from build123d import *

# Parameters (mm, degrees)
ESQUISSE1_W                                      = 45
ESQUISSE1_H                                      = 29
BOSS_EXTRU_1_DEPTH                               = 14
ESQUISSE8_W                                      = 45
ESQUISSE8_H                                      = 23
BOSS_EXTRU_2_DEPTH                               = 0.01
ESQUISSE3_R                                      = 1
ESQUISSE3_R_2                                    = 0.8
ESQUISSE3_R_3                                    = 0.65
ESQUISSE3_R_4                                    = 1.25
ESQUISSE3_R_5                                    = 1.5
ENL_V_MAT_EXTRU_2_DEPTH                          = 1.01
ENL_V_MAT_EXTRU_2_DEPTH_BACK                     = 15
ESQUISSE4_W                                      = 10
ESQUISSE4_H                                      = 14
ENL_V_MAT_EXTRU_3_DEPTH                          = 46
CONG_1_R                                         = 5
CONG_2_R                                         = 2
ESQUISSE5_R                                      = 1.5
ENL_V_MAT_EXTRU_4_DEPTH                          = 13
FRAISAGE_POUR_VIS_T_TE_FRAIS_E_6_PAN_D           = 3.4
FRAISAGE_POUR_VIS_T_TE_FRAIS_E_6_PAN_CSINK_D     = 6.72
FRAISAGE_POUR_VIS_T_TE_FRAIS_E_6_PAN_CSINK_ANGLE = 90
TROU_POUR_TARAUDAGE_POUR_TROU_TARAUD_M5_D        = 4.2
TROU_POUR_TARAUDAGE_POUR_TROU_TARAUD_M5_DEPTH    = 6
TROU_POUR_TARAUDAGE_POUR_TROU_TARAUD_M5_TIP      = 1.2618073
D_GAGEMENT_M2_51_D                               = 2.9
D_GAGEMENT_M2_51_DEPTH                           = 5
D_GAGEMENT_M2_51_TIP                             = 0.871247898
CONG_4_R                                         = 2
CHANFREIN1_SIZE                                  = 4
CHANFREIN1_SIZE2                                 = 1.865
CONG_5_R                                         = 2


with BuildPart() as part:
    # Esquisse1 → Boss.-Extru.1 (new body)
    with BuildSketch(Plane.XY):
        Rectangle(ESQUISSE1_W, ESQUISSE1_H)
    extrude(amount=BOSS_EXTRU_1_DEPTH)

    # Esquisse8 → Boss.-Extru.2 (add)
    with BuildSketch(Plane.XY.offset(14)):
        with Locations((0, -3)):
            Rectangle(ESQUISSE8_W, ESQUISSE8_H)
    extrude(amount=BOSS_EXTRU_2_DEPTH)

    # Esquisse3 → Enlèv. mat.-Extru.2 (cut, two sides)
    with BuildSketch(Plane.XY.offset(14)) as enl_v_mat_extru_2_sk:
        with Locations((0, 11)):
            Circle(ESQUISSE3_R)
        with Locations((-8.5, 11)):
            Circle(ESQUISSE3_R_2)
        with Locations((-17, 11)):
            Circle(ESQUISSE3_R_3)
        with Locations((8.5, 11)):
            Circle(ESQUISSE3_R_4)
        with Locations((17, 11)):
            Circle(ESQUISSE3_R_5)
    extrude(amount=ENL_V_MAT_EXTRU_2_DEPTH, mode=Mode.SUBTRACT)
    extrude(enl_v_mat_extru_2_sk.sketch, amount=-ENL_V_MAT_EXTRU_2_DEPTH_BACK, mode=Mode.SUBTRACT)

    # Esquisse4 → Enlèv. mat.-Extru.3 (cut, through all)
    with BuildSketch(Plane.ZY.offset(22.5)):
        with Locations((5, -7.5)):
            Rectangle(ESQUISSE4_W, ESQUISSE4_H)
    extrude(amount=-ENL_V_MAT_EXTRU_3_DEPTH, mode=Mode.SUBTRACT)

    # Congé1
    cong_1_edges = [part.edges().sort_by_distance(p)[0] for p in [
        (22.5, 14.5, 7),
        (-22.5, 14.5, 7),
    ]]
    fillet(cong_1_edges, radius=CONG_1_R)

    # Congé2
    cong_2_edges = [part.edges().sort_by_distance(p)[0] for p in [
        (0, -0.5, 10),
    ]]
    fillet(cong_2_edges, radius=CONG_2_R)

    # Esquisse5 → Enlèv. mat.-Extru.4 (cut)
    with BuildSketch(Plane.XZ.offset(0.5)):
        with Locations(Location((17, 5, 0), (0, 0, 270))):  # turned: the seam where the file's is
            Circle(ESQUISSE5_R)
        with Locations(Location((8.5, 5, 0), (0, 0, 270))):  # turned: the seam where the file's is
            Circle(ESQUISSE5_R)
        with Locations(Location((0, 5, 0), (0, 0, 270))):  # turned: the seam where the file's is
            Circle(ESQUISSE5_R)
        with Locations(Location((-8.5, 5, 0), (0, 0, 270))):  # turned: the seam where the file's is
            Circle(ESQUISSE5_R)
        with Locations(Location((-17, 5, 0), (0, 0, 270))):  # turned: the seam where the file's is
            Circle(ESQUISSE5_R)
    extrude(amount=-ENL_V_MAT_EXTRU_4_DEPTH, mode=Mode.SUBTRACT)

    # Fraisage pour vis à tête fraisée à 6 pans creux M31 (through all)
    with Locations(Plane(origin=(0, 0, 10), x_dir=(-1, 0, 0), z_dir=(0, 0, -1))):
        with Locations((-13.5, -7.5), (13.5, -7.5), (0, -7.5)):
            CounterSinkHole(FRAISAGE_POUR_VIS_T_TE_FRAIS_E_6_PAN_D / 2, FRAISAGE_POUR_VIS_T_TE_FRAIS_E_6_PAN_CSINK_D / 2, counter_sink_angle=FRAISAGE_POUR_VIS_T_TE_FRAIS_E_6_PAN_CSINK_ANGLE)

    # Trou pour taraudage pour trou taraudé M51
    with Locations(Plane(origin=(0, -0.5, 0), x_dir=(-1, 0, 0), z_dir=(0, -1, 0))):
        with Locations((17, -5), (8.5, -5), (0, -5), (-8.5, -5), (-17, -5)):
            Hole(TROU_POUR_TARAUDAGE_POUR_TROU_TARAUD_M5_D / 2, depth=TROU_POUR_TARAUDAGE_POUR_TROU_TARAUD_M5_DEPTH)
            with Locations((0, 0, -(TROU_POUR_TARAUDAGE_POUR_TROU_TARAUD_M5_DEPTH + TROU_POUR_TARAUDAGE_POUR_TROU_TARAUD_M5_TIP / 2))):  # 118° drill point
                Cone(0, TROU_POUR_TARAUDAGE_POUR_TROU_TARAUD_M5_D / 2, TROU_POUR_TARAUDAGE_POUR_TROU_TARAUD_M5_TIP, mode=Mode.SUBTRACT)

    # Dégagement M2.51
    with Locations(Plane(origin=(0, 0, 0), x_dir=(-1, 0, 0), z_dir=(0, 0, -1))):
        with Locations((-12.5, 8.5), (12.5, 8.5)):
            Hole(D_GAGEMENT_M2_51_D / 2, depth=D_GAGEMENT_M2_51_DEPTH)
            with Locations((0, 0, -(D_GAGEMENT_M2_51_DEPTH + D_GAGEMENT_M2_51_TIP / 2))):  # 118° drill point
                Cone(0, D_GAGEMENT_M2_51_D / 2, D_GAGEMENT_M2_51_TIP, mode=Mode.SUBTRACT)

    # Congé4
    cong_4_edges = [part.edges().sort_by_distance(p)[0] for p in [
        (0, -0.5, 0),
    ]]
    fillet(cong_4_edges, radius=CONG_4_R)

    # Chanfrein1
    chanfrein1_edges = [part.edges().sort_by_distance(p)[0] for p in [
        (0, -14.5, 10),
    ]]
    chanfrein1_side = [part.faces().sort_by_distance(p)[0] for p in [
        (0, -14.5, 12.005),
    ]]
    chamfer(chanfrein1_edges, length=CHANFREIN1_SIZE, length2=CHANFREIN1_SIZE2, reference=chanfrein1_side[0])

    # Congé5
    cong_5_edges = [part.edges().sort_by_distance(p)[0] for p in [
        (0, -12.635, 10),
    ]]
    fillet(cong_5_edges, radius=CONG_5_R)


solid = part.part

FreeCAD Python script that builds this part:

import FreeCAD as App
import Part
import Sketcher

V = App.Vector


def edges_at(feature, points):
    """Names of the edges that pass closest to the given points."""
    edges = feature.Shape.Edges
    near = lambda p: min(range(len(edges)), key=lambda i: edges[i].distToShape(Part.Vertex(*p))[0])
    return sorted({f"Edge{near(p) + 1}" for p in points})

doc = App.newDocument("Part")
body = doc.addObject("PartDesign::Body", "Body")

sketch1 = body.newObject("Sketcher::SketchObject", "Sketch")
sketch1.AttachmentSupport = (doc.getObject("XY_Plane"), [""])
sketch1.MapMode = "FlatFace"
sketch1.addGeometry([
    Part.LineSegment(V(-22.5, 14.5, 0), V(-22.5, -14.5, 0)),
    Part.LineSegment(V(-22.5, -14.5, 0), V(22.5, -14.5, 0)),
    Part.LineSegment(V(22.5, -14.5, 0), V(22.5, 14.5, 0)),
    Part.LineSegment(V(22.5, 14.5, 0), V(-22.5, 14.5, 0)),
], False)
sketch1.addConstraint([
    Sketcher.Constraint("Coincident", 0, 2, 1, 1),
    Sketcher.Constraint("Coincident", 1, 2, 2, 1),
    Sketcher.Constraint("Coincident", 2, 2, 3, 1),
    Sketcher.Constraint("Coincident", 3, 2, 0, 1),
    Sketcher.Constraint("Vertical", 0),
    Sketcher.Constraint("Horizontal", 1),
    Sketcher.Constraint("Vertical", 2),
    Sketcher.Constraint("Horizontal", 3),
    Sketcher.Constraint("Symmetric", 0, 2, 2, 2, -1, 1),
    Sketcher.Constraint("DistanceX", 1, 1, 1, 2, 45.0),
    Sketcher.Constraint("DistanceY", 0, 2, 0, 1, 29.0),
])
pad1 = body.newObject("PartDesign::Pad", "Pad")
pad1.Profile = sketch1
pad1.Length = 14

sketch2 = body.newObject("Sketcher::SketchObject", "Sketch001")
sketch2.AttachmentSupport = (doc.getObject("XY_Plane"), [""])
sketch2.MapMode = "FlatFace"
sketch2.AttachmentOffset = App.Placement(V(0, 0, 14), App.Rotation())
sketch2.addGeometry([
    Part.LineSegment(V(-22.5, 8.5, 0), V(-22.5, -14.5, 0)),
    Part.LineSegment(V(-22.5, -14.5, 0), V(22.5, -14.5, 0)),
    Part.LineSegment(V(22.5, -14.5, 0), V(22.5, 8.5, 0)),
    Part.LineSegment(V(22.5, 8.5, 0), V(-22.5, 8.5, 0)),
], False)
sketch2.addConstraint([
    Sketcher.Constraint("Coincident", 0, 2, 1, 1),
    Sketcher.Constraint("Coincident", 1, 2, 2, 1),
    Sketcher.Constraint("Coincident", 2, 2, 3, 1),
    Sketcher.Constraint("Coincident", 3, 2, 0, 1),
    Sketcher.Constraint("Vertical", 0),
    Sketcher.Constraint("Horizontal", 1),
    Sketcher.Constraint("Vertical", 2),
    Sketcher.Constraint("Horizontal", 3),
    Sketcher.Constraint("DistanceX", 1, 1, 1, 2, 45.0),
    Sketcher.Constraint("DistanceY", 0, 2, 0, 1, 23.0),
    Sketcher.Constraint("DistanceX", 0, 2, -1, 1, 22.5),
    Sketcher.Constraint("DistanceY", 0, 2, -1, 1, 14.5),
])
pad2 = body.newObject("PartDesign::Pad", "Pad001")
pad2.Profile = sketch2
pad2.Length = 0.01

sketch3 = body.newObject("Sketcher::SketchObject", "Sketch002")
sketch3.AttachmentSupport = (doc.getObject("XY_Plane"), [""])
sketch3.MapMode = "FlatFace"
sketch3.AttachmentOffset = App.Placement(V(0, 0, 14), App.Rotation())
sketch3.addGeometry([
    Part.Circle(V(0, 11, 0), V(0, 0, 1), 1),
    Part.Circle(V(-8.5, 11, 0), V(0, 0, 1), 0.8),
    Part.Circle(V(-17, 11, 0), V(0, 0, 1), 0.65),
    Part.Circle(V(8.5, 11, 0), V(0, 0, 1), 1.25),
    Part.Circle(V(17, 11, 0), V(0, 0, 1), 1.5),
], False)
sketch3.addConstraint([
    Sketcher.Constraint("Symmetric", 1, 3, 3, 3, -2),
    Sketcher.Constraint("Symmetric", 2, 3, 4, 3, -2),
    Sketcher.Constraint("PointOnObject", 0, 3, -2),
    Sketcher.Constraint("Horizontal", 0, 3, 1, 3),
    Sketcher.Constraint("Horizontal", 1, 3, 2, 3),
    Sketcher.Constraint("Diameter", 0, 2.0),
    Sketcher.Constraint("Diameter", 4, 3.0),
    Sketcher.Constraint("Diameter", 1, 1.6),
    Sketcher.Constraint("Diameter", 2, 1.3),
    Sketcher.Constraint("Diameter", 3, 2.5),
    Sketcher.Constraint("DistanceY", -1, 1, 0, 3, 11.0),
    Sketcher.Constraint("DistanceX", 2, 3, -1, 1, 17.0),
    Sketcher.Constraint("DistanceX", 1, 3, 3, 3, 17.0),
])
pocket1 = body.newObject("PartDesign::Pocket", "Pocket")
pocket1.Profile = sketch3
pocket1.Type = "ThroughAll"
pocket1.Midplane = True

sketch4 = body.newObject("Sketcher::SketchObject", "Sketch003")
sketch4.AttachmentSupport = (doc.getObject("YZ_Plane"), [""])
sketch4.MapMode = "FlatFace"
sketch4.AttachmentOffset = App.Placement(V(0, 0, -22.5), App.Rotation())
sketch4.addGeometry([
    Part.LineSegment(V(-0.5, 0, 0), V(-14.5, 0, 0)),
    Part.LineSegment(V(-14.5, 0, 0), V(-14.5, 10, 0)),
    Part.LineSegment(V(-14.5, 10, 0), V(-0.5, 10, 0)),
    Part.LineSegment(V(-0.5, 10, 0), V(-0.5, 0, 0)),
], False)
sketch4.addConstraint([
    Sketcher.Constraint("Coincident", 0, 2, 1, 1),
    Sketcher.Constraint("Coincident", 1, 2, 2, 1),
    Sketcher.Constraint("Coincident", 2, 2, 3, 1),
    Sketcher.Constraint("Coincident", 3, 2, 0, 1),
    Sketcher.Constraint("Horizontal", 0),
    Sketcher.Constraint("Vertical", 1),
    Sketcher.Constraint("Horizontal", 2),
    Sketcher.Constraint("Vertical", 3),
    Sketcher.Constraint("PointOnObject", 0, 2, -1),
    Sketcher.Constraint("DistanceX", 0, 2, 0, 1, 14.0),
    Sketcher.Constraint("DistanceY", 1, 1, 1, 2, 10.0),
    Sketcher.Constraint("DistanceX", 0, 2, -1, 1, 14.5),
])
pocket2 = body.newObject("PartDesign::Pocket", "Pocket001")
pocket2.Profile = sketch4
pocket2.Type = "ThroughAll"
pocket2.Reversed = True
doc.recompute()

fillet = body.newObject("PartDesign::Fillet", "Fillet")
fillet.Base = (pocket2, edges_at(pocket2, [(22.5, 14.5, 7), (-22.5, 14.5, 7)]))
fillet.Radius = 5
doc.recompute()

fillet2 = body.newObject("PartDesign::Fillet", "Fillet001")
fillet2.Base = (fillet, edges_at(fillet, [(0, -0.5, 10)]))
fillet2.Radius = 2

sketch5 = body.newObject("Sketcher::SketchObject", "Sketch004")
sketch5.AttachmentSupport = (doc.getObject("XZ_Plane"), [""])
sketch5.MapMode = "FlatFace"
sketch5.AttachmentOffset = App.Placement(V(0, 0, 0.5), App.Rotation())
sketch5.addGeometry([
    Part.Circle(V(17, 5, 0), V(0, 0, 1), 1.5),
    Part.Circle(V(8.5, 5, 0), V(0, 0, 1), 1.5),
    Part.Circle(V(0, 5, 0), V(0, 0, 1), 1.5),
    Part.Circle(V(-8.5, 5, 0), V(0, 0, 1), 1.5),
    Part.Circle(V(-17, 5, 0), V(0, 0, 1), 1.5),
], False)
sketch5.addConstraint([
    Sketcher.Constraint("Equal", 0, 1),
    Sketcher.Constraint("Equal", 1, 2),
    Sketcher.Constraint("Equal", 2, 3),
    Sketcher.Constraint("Equal", 3, 4),
    Sketcher.Constraint("Symmetric", 1, 3, 3, 3, -2),
    Sketcher.Constraint("Symmetric", 0, 3, 4, 3, -2),
    Sketcher.Constraint("PointOnObject", 2, 3, -2),
    Sketcher.Constraint("Horizontal", 0, 3, 1, 3),
    Sketcher.Constraint("Horizontal", 1, 3, 2, 3),
    Sketcher.Constraint("Diameter", 0, 3.0),
    Sketcher.Constraint("DistanceX", -1, 1, 0, 3, 17.0),
    Sketcher.Constraint("DistanceY", -1, 1, 0, 3, 5.0),
    Sketcher.Constraint("DistanceX", 3, 3, 1, 3, 17.0),
])
pocket3 = body.newObject("PartDesign::Pocket", "Pocket002")
pocket3.Profile = sketch5
pocket3.Length = 13

sketch6 = body.newObject("Sketcher::SketchObject", "Sketch005")
sketch6.AttachmentSupport = (doc.getObject("XY_Plane"), [""])
sketch6.MapMode = "FlatFace"
sketch6.AttachmentOffset = App.Placement(V(0, 0, 10), App.Rotation())
sketch6.addGeometry([
    Part.Circle(V(13.5, -7.5, 0), V(0, 0, 1), 1.7),
    Part.Circle(V(-13.5, -7.5, 0), V(0, 0, 1), 1.7),
    Part.Circle(V(0, -7.5, 0), V(0, 0, 1), 1.7),
], False)
sketch6.addConstraint([
    Sketcher.Constraint("Equal", 0, 1),
    Sketcher.Constraint("Equal", 1, 2),
    Sketcher.Constraint("Symmetric", 0, 3, 1, 3, -2),
    Sketcher.Constraint("PointOnObject", 2, 3, -2),
    Sketcher.Constraint("Horizontal", 1, 3, 2, 3),
    Sketcher.Constraint("Diameter", 0, 3.4),
    Sketcher.Constraint("DistanceX", 1, 3, 0, 3, 27.0),
    Sketcher.Constraint("DistanceY", 0, 3, -1, 1, 7.5),
])
doc.recompute()
hole = body.newObject("PartDesign::Hole", "Hole")
hole.Profile = sketch6
hole.ThreadType = "None"
hole.Diameter = 3.4
hole.DepthType = "ThroughAll"
hole.HoleCutType = "Countersink"
hole.HoleCutDiameter = 6.72
hole.HoleCutCountersinkAngle = 90
hole.Reversed = True

sketch7 = body.newObject("Sketcher::SketchObject", "Sketch006")
sketch7.AttachmentSupport = (doc.getObject("XZ_Plane"), [""])
sketch7.MapMode = "FlatFace"
sketch7.AttachmentOffset = App.Placement(V(0, 0, 0.5), App.Rotation())
sketch7.addGeometry([
    Part.Circle(V(-17, 5, 0), V(0, 0, 1), 2.1),
    Part.Circle(V(-8.5, 5, 0), V(0, 0, 1), 2.1),
    Part.Circle(V(0, 5, 0), V(0, 0, 1), 2.1),
    Part.Circle(V(8.5, 5, 0), V(0, 0, 1), 2.1),
    Part.Circle(V(17, 5, 0), V(0, 0, 1), 2.1),
], False)
sketch7.addConstraint([
    Sketcher.Constraint("Equal", 0, 1),
    Sketcher.Constraint("Equal", 1, 2),
    Sketcher.Constraint("Equal", 2, 3),
    Sketcher.Constraint("Equal", 3, 4),
    Sketcher.Constraint("Symmetric", 1, 3, 3, 3, -2),
    Sketcher.Constraint("Symmetric", 0, 3, 4, 3, -2),
    Sketcher.Constraint("PointOnObject", 2, 3, -2),
    Sketcher.Constraint("Horizontal", 0, 3, 1, 3),
    Sketcher.Constraint("Horizontal", 1, 3, 2, 3),
    Sketcher.Constraint("Diameter", 0, 4.2),
    Sketcher.Constraint("DistanceX", 0, 3, -1, 1, 17.0),
    Sketcher.Constraint("DistanceY", -1, 1, 0, 3, 5.0),
    Sketcher.Constraint("DistanceX", 1, 3, 3, 3, 17.0),
])
doc.recompute()
hole2 = body.newObject("PartDesign::Hole", "Hole001")
hole2.Profile = sketch7
hole2.ThreadType = "None"
hole2.Diameter = 4.2
hole2.DepthType = "Dimension"
hole2.Depth = 6
hole2.DrillPoint = "Angled"
hole2.DrillPointAngle = 118

sketch8 = body.newObject("Sketcher::SketchObject", "Sketch007")
sketch8.AttachmentSupport = (doc.getObject("XY_Plane"), [""])
sketch8.MapMode = "FlatFace"
sketch8.addGeometry([
    Part.Circle(V(12.5, 8.5, 0), V(0, 0, 1), 1.45),
    Part.Circle(V(-12.5, 8.5, 0), V(0, 0, 1), 1.45),
], False)
sketch8.addConstraint([
    Sketcher.Constraint("Equal", 0, 1),
    Sketcher.Constraint("Symmetric", 0, 3, 1, 3, -2),
    Sketcher.Constraint("Diameter", 0, 2.9),
    Sketcher.Constraint("DistanceX", 1, 3, 0, 3, 25.0),
    Sketcher.Constraint("DistanceY", -1, 1, 0, 3, 8.5),
])
doc.recompute()
hole3 = body.newObject("PartDesign::Hole", "Hole002")
hole3.Profile = sketch8
hole3.ThreadType = "None"
hole3.Diameter = 2.9
hole3.DepthType = "Dimension"
hole3.Depth = 5
hole3.DrillPoint = "Angled"
hole3.DrillPointAngle = 118
hole3.Reversed = True
doc.recompute()

fillet3 = body.newObject("PartDesign::Fillet", "Fillet002")
fillet3.Base = (hole3, edges_at(hole3, [(0, -0.5, 0)]))
fillet3.Radius = 2
doc.recompute()

chamfer = body.newObject("PartDesign::Chamfer", "Chamfer")
chamfer.Base = (fillet3, edges_at(fillet3, [(0, -14.5, 10)]))
chamfer.ChamferType = "Two distances"
chamfer.Size = 4
chamfer.Size2 = 1.865
chamfer.FlipDirection = True
doc.recompute()

fillet4 = body.newObject("PartDesign::Fillet", "Fillet003")
fillet4.Base = (chamfer, edges_at(chamfer, [(0, -12.635, 10)]))
fillet4.Radius = 2

doc.recompute()
